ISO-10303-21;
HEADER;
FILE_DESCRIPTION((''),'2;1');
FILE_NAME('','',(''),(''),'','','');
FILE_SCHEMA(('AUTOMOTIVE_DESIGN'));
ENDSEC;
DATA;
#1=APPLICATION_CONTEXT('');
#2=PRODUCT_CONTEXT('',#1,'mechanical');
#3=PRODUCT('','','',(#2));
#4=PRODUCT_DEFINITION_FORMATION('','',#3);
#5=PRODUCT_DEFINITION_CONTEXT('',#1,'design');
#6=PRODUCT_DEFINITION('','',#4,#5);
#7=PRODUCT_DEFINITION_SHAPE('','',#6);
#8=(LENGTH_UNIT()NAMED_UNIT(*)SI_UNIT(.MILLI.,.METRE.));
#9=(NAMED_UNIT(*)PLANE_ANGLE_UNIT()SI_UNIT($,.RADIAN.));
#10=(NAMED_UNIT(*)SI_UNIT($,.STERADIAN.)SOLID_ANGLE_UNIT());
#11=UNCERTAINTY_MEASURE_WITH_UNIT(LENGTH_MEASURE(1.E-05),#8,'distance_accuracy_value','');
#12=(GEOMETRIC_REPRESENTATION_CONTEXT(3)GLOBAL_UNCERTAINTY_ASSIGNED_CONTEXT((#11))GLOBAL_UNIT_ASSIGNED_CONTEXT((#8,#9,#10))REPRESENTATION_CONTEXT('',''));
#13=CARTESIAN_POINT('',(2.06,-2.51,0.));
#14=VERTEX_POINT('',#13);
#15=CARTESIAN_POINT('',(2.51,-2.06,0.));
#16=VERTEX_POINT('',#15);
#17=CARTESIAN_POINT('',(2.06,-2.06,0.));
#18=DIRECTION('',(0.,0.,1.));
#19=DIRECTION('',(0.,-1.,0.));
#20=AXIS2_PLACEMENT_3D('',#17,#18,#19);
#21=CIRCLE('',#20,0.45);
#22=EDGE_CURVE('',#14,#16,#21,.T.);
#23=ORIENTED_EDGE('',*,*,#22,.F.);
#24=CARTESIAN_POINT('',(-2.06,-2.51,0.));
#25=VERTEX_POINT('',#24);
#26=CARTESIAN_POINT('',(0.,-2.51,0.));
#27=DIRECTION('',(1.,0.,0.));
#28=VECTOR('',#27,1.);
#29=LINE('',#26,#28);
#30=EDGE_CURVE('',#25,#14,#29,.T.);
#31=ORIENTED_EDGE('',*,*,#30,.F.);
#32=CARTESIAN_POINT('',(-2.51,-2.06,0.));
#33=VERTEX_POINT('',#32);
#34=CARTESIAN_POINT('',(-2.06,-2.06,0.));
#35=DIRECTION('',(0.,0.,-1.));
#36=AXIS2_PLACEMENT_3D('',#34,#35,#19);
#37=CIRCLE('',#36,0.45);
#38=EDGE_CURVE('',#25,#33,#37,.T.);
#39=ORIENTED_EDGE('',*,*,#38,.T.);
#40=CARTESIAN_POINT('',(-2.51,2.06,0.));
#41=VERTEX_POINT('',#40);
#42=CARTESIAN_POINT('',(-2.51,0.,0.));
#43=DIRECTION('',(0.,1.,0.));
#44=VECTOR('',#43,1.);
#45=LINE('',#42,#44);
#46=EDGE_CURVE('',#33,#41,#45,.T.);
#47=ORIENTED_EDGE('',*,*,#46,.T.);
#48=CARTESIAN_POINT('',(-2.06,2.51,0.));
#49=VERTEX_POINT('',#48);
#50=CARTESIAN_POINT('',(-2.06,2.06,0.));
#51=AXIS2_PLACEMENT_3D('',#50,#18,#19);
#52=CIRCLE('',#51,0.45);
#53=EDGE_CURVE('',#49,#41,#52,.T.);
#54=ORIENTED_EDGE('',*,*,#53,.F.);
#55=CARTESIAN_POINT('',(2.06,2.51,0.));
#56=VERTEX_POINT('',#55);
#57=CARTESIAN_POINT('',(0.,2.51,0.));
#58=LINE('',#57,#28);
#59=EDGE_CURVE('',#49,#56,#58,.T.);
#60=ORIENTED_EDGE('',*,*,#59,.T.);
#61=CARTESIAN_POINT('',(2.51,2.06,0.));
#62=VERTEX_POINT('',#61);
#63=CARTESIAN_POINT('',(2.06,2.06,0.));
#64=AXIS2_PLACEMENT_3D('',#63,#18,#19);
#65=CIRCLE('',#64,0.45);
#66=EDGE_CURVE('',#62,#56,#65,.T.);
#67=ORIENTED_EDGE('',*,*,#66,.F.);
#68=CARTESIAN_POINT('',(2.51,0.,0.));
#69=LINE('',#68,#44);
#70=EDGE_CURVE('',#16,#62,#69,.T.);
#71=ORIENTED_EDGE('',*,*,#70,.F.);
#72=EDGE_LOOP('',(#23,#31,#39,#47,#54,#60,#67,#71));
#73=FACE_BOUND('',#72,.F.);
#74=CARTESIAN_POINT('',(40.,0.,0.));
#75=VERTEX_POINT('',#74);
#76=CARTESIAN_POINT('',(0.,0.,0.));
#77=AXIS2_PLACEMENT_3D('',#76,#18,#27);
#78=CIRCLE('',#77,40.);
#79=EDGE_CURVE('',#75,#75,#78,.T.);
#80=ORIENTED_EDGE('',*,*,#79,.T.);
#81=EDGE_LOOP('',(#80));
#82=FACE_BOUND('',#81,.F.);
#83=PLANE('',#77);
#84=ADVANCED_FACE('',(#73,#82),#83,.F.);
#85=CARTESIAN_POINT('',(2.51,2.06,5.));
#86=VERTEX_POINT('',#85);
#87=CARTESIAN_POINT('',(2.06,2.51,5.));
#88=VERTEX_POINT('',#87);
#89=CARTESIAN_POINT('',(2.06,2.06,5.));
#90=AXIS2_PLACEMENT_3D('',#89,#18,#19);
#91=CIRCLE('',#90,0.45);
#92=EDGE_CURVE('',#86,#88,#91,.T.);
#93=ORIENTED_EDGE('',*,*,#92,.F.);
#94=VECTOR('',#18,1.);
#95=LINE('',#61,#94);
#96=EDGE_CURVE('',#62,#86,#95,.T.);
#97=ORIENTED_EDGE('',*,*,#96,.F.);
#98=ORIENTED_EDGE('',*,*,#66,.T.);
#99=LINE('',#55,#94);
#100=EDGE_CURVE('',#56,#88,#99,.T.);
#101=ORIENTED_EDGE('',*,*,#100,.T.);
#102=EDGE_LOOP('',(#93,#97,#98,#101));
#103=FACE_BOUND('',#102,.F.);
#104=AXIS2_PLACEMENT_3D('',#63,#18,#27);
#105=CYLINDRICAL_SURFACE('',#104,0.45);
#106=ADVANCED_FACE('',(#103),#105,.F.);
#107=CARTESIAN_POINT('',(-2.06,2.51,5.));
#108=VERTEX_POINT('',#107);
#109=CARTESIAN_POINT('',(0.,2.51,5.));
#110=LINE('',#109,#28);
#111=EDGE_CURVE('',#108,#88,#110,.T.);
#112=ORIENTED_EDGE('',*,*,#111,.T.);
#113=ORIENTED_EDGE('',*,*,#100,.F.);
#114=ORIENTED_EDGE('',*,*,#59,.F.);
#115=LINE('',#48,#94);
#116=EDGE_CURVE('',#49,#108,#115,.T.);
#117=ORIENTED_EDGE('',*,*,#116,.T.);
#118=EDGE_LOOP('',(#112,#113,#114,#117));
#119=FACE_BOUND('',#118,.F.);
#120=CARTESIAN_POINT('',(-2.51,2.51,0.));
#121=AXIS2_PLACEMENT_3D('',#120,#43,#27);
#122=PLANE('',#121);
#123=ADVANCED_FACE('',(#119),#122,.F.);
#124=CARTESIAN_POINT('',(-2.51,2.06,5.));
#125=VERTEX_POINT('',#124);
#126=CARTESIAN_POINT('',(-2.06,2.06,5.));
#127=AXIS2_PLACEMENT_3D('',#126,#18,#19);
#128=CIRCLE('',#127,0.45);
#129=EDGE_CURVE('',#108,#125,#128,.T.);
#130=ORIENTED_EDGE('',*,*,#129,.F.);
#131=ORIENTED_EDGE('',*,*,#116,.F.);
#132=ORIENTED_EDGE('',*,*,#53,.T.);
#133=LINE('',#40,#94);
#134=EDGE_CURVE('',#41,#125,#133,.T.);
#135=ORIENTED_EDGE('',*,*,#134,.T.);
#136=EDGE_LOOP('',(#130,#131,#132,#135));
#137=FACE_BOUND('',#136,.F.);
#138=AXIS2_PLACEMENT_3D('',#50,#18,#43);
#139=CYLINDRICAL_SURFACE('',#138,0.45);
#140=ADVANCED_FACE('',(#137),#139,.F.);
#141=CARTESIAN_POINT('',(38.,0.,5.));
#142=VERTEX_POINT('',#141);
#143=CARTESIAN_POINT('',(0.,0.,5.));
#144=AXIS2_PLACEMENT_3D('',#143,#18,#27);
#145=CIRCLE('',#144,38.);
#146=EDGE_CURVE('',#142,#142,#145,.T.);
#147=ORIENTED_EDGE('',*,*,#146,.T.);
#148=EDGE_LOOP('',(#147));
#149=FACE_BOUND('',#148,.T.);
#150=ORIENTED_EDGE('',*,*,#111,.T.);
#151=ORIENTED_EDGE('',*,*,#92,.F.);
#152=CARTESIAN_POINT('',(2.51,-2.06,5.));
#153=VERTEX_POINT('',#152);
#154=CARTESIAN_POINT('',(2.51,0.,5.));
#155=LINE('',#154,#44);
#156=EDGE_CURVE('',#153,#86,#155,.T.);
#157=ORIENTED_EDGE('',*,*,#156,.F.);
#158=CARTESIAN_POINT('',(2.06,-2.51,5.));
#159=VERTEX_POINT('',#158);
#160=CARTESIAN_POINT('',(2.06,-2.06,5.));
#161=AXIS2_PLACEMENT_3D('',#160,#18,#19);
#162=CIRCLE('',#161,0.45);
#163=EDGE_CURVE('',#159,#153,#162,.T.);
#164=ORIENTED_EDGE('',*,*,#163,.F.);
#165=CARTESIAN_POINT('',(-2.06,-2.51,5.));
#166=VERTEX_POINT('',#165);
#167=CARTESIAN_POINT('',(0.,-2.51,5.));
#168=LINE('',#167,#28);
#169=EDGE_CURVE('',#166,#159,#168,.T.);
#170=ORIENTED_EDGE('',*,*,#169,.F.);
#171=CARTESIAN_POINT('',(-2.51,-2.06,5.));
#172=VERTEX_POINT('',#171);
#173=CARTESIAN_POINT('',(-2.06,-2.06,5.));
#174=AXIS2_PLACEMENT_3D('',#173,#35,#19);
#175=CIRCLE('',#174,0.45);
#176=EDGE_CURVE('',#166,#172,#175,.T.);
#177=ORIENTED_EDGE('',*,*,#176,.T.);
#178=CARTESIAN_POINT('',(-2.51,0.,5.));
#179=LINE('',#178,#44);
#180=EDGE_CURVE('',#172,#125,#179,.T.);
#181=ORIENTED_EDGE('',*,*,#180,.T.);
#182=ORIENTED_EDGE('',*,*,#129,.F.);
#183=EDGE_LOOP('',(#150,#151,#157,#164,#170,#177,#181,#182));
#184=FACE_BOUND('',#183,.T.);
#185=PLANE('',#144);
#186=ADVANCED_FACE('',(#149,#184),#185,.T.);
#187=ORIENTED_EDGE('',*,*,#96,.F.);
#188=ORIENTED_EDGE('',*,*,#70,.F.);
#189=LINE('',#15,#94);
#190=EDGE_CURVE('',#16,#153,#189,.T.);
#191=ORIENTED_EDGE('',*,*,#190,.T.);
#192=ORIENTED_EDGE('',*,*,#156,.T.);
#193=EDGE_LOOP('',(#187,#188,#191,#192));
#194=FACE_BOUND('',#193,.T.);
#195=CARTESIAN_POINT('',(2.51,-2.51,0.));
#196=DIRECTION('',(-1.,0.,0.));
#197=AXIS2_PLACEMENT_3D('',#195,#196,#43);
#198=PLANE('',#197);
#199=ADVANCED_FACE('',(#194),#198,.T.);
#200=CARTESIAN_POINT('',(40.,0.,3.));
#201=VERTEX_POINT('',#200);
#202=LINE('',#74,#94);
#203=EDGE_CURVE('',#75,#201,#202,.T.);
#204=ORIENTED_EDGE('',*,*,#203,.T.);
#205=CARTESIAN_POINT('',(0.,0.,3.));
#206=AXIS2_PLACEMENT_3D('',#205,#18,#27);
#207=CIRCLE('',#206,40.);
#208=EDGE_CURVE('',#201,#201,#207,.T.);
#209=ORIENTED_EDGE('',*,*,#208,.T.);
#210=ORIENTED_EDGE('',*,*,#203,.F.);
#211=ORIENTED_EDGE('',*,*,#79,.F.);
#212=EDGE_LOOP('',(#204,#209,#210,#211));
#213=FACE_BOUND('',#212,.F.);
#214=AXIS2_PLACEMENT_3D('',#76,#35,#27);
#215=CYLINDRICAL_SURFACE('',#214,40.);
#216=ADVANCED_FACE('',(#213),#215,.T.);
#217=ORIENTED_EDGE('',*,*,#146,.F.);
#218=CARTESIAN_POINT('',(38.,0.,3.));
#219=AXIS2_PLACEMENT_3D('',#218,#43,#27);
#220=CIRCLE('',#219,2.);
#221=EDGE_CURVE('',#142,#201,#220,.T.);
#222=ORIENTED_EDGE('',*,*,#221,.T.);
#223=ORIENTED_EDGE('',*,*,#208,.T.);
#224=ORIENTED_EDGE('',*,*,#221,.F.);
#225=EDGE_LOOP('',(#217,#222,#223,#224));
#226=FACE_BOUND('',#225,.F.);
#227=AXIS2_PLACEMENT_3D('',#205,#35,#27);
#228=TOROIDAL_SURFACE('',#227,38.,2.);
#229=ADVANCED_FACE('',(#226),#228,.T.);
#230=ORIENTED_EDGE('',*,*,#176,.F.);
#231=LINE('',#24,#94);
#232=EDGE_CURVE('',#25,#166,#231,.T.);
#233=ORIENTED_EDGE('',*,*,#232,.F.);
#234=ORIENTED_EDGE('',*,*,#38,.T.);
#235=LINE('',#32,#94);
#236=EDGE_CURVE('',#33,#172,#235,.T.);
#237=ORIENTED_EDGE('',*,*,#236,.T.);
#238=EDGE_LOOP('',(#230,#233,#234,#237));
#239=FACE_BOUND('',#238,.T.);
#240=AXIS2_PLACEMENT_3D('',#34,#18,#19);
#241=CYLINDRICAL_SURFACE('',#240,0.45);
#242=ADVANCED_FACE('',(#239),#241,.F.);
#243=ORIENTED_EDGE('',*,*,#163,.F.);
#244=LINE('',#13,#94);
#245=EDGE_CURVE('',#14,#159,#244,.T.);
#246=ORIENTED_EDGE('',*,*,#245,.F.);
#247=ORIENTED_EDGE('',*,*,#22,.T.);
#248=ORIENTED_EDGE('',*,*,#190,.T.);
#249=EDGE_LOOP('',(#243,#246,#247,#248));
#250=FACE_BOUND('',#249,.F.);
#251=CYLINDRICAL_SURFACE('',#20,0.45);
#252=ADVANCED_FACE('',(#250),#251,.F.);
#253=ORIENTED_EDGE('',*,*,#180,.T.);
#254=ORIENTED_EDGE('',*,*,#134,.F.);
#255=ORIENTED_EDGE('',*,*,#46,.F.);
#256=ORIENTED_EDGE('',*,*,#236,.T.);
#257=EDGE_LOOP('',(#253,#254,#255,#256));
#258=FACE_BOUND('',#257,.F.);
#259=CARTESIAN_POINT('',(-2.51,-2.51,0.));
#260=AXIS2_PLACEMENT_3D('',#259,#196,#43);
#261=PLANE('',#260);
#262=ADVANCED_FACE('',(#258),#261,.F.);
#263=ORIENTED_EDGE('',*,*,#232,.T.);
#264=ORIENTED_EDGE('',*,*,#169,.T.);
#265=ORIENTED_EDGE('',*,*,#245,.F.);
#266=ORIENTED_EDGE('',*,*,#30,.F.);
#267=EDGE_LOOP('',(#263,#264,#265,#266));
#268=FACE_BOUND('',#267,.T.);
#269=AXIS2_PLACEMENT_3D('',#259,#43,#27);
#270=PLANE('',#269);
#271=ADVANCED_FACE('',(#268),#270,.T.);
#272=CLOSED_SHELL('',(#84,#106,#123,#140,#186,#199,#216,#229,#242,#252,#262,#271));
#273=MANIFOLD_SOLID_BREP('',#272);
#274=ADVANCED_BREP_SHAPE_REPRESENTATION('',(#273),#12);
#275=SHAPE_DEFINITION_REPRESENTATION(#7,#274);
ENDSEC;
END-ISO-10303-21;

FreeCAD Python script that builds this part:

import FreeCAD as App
import Part
import Sketcher
Q = App.Units.Quantity


def edges_at(feature, points):
    """Names of the edges that pass closest to the given points."""
    edges = feature.Shape.Edges
    near = lambda p: min(range(len(edges)), key=lambda i: edges[i].distToShape(Part.Vertex(*p))[0])
    return sorted({f"Edge{near(p) + 1}" for p in points})

doc = App.newDocument("Part")
params = doc.addObject("Spreadsheet::Sheet", "Params")
for row, (alias, value) in enumerate([
    ("sketch1_diameter", "80 mm"),
    ("sketch1_width", "5.02 mm"),
    ("pad1_length", "5 mm"),
    ("fillet_radius", "0.45 mm"),
    ("fillet2_radius", "2 mm"),
], start=1):
    params.set(f"A{row}", alias)
    params.set(f"B{row}", "=" + value)
    params.setAlias(f"B{row}", alias)

body = doc.addObject("PartDesign::Body", "Body")

sketch1 = body.newObject("Sketcher::SketchObject", "Sketch")
sketch1.AttachmentSupport = (doc.getObject("XY_Plane"), [""])
sketch1.MapMode = "FlatFace"
sketch1.addGeometry(Part.Circle(App.Vector(0, 0, 0), App.Vector(0, 0, 1), 40), False)
sketch1.addGeometry(Part.LineSegment(App.Vector(3, -3, 0), App.Vector(-3, -3, 0)), False)
sketch1.addGeometry(Part.LineSegment(App.Vector(-3, -3, 0), App.Vector(-3, 3, 0)), False)
sketch1.addGeometry(Part.LineSegment(App.Vector(-3, 3, 0), App.Vector(3, 3, 0)), False)
sketch1.addGeometry(Part.LineSegment(App.Vector(3, 3, 0), App.Vector(3, -3, 0)), False)
sketch1.addConstraint(Sketcher.Constraint("Coincident", 1, 2, 2, 1))
sketch1.addConstraint(Sketcher.Constraint("Coincident", 2, 2, 3, 1))
sketch1.addConstraint(Sketcher.Constraint("Coincident", 3, 2, 4, 1))
sketch1.addConstraint(Sketcher.Constraint("Coincident", 4, 2, 1, 1))
sketch1.addConstraint(Sketcher.Constraint("Horizontal", 1))
sketch1.addConstraint(Sketcher.Constraint("Vertical", 2))
sketch1.addConstraint(Sketcher.Constraint("Horizontal", 3))
sketch1.addConstraint(Sketcher.Constraint("Vertical", 4))
sketch1.addConstraint(Sketcher.Constraint("Coincident", 0, 3, -1, 1))
sketch1.addConstraint(Sketcher.Constraint("Symmetric", 1, 2, 3, 2, -1, 1))
sketch1.addConstraint(Sketcher.Constraint("Equal", 3, 2))
sketch1.addConstraint(Sketcher.Constraint("Diameter", 0, Q("80 mm")))
sketch1.addConstraint(Sketcher.Constraint("DistanceX", 1, 2, 1, 1, Q("5.02 mm")))
sketch1.setExpression("Constraints[11]", "Params.sketch1_diameter")
sketch1.setExpression("Constraints[12]", "Params.sketch1_width")
pad1 = body.newObject("PartDesign::Pad", "Pad")
pad1.Profile = sketch1
pad1.setExpression("Length", "Params.pad1_length")
doc.recompute()

fillet = body.newObject("PartDesign::Fillet", "Fillet")
fillet.Base = (pad1, edges_at(pad1, [
    (-2.51, 2.51, 2.5),
    (-2.51, -2.51, 2.5),
    (2.51, -2.51, 2.5),
    (2.51, 2.51, 2.5),
]))
fillet.setExpression("Radius", "Params.fillet_radius")
doc.recompute()

fillet2 = body.newObject("PartDesign::Fillet", "Fillet001")
fillet2.Base = (fillet, edges_at(fillet, [(-40, 0, 5)]))
fillet2.setExpression("Radius", "Params.fillet2_radius")

doc.recompute()
